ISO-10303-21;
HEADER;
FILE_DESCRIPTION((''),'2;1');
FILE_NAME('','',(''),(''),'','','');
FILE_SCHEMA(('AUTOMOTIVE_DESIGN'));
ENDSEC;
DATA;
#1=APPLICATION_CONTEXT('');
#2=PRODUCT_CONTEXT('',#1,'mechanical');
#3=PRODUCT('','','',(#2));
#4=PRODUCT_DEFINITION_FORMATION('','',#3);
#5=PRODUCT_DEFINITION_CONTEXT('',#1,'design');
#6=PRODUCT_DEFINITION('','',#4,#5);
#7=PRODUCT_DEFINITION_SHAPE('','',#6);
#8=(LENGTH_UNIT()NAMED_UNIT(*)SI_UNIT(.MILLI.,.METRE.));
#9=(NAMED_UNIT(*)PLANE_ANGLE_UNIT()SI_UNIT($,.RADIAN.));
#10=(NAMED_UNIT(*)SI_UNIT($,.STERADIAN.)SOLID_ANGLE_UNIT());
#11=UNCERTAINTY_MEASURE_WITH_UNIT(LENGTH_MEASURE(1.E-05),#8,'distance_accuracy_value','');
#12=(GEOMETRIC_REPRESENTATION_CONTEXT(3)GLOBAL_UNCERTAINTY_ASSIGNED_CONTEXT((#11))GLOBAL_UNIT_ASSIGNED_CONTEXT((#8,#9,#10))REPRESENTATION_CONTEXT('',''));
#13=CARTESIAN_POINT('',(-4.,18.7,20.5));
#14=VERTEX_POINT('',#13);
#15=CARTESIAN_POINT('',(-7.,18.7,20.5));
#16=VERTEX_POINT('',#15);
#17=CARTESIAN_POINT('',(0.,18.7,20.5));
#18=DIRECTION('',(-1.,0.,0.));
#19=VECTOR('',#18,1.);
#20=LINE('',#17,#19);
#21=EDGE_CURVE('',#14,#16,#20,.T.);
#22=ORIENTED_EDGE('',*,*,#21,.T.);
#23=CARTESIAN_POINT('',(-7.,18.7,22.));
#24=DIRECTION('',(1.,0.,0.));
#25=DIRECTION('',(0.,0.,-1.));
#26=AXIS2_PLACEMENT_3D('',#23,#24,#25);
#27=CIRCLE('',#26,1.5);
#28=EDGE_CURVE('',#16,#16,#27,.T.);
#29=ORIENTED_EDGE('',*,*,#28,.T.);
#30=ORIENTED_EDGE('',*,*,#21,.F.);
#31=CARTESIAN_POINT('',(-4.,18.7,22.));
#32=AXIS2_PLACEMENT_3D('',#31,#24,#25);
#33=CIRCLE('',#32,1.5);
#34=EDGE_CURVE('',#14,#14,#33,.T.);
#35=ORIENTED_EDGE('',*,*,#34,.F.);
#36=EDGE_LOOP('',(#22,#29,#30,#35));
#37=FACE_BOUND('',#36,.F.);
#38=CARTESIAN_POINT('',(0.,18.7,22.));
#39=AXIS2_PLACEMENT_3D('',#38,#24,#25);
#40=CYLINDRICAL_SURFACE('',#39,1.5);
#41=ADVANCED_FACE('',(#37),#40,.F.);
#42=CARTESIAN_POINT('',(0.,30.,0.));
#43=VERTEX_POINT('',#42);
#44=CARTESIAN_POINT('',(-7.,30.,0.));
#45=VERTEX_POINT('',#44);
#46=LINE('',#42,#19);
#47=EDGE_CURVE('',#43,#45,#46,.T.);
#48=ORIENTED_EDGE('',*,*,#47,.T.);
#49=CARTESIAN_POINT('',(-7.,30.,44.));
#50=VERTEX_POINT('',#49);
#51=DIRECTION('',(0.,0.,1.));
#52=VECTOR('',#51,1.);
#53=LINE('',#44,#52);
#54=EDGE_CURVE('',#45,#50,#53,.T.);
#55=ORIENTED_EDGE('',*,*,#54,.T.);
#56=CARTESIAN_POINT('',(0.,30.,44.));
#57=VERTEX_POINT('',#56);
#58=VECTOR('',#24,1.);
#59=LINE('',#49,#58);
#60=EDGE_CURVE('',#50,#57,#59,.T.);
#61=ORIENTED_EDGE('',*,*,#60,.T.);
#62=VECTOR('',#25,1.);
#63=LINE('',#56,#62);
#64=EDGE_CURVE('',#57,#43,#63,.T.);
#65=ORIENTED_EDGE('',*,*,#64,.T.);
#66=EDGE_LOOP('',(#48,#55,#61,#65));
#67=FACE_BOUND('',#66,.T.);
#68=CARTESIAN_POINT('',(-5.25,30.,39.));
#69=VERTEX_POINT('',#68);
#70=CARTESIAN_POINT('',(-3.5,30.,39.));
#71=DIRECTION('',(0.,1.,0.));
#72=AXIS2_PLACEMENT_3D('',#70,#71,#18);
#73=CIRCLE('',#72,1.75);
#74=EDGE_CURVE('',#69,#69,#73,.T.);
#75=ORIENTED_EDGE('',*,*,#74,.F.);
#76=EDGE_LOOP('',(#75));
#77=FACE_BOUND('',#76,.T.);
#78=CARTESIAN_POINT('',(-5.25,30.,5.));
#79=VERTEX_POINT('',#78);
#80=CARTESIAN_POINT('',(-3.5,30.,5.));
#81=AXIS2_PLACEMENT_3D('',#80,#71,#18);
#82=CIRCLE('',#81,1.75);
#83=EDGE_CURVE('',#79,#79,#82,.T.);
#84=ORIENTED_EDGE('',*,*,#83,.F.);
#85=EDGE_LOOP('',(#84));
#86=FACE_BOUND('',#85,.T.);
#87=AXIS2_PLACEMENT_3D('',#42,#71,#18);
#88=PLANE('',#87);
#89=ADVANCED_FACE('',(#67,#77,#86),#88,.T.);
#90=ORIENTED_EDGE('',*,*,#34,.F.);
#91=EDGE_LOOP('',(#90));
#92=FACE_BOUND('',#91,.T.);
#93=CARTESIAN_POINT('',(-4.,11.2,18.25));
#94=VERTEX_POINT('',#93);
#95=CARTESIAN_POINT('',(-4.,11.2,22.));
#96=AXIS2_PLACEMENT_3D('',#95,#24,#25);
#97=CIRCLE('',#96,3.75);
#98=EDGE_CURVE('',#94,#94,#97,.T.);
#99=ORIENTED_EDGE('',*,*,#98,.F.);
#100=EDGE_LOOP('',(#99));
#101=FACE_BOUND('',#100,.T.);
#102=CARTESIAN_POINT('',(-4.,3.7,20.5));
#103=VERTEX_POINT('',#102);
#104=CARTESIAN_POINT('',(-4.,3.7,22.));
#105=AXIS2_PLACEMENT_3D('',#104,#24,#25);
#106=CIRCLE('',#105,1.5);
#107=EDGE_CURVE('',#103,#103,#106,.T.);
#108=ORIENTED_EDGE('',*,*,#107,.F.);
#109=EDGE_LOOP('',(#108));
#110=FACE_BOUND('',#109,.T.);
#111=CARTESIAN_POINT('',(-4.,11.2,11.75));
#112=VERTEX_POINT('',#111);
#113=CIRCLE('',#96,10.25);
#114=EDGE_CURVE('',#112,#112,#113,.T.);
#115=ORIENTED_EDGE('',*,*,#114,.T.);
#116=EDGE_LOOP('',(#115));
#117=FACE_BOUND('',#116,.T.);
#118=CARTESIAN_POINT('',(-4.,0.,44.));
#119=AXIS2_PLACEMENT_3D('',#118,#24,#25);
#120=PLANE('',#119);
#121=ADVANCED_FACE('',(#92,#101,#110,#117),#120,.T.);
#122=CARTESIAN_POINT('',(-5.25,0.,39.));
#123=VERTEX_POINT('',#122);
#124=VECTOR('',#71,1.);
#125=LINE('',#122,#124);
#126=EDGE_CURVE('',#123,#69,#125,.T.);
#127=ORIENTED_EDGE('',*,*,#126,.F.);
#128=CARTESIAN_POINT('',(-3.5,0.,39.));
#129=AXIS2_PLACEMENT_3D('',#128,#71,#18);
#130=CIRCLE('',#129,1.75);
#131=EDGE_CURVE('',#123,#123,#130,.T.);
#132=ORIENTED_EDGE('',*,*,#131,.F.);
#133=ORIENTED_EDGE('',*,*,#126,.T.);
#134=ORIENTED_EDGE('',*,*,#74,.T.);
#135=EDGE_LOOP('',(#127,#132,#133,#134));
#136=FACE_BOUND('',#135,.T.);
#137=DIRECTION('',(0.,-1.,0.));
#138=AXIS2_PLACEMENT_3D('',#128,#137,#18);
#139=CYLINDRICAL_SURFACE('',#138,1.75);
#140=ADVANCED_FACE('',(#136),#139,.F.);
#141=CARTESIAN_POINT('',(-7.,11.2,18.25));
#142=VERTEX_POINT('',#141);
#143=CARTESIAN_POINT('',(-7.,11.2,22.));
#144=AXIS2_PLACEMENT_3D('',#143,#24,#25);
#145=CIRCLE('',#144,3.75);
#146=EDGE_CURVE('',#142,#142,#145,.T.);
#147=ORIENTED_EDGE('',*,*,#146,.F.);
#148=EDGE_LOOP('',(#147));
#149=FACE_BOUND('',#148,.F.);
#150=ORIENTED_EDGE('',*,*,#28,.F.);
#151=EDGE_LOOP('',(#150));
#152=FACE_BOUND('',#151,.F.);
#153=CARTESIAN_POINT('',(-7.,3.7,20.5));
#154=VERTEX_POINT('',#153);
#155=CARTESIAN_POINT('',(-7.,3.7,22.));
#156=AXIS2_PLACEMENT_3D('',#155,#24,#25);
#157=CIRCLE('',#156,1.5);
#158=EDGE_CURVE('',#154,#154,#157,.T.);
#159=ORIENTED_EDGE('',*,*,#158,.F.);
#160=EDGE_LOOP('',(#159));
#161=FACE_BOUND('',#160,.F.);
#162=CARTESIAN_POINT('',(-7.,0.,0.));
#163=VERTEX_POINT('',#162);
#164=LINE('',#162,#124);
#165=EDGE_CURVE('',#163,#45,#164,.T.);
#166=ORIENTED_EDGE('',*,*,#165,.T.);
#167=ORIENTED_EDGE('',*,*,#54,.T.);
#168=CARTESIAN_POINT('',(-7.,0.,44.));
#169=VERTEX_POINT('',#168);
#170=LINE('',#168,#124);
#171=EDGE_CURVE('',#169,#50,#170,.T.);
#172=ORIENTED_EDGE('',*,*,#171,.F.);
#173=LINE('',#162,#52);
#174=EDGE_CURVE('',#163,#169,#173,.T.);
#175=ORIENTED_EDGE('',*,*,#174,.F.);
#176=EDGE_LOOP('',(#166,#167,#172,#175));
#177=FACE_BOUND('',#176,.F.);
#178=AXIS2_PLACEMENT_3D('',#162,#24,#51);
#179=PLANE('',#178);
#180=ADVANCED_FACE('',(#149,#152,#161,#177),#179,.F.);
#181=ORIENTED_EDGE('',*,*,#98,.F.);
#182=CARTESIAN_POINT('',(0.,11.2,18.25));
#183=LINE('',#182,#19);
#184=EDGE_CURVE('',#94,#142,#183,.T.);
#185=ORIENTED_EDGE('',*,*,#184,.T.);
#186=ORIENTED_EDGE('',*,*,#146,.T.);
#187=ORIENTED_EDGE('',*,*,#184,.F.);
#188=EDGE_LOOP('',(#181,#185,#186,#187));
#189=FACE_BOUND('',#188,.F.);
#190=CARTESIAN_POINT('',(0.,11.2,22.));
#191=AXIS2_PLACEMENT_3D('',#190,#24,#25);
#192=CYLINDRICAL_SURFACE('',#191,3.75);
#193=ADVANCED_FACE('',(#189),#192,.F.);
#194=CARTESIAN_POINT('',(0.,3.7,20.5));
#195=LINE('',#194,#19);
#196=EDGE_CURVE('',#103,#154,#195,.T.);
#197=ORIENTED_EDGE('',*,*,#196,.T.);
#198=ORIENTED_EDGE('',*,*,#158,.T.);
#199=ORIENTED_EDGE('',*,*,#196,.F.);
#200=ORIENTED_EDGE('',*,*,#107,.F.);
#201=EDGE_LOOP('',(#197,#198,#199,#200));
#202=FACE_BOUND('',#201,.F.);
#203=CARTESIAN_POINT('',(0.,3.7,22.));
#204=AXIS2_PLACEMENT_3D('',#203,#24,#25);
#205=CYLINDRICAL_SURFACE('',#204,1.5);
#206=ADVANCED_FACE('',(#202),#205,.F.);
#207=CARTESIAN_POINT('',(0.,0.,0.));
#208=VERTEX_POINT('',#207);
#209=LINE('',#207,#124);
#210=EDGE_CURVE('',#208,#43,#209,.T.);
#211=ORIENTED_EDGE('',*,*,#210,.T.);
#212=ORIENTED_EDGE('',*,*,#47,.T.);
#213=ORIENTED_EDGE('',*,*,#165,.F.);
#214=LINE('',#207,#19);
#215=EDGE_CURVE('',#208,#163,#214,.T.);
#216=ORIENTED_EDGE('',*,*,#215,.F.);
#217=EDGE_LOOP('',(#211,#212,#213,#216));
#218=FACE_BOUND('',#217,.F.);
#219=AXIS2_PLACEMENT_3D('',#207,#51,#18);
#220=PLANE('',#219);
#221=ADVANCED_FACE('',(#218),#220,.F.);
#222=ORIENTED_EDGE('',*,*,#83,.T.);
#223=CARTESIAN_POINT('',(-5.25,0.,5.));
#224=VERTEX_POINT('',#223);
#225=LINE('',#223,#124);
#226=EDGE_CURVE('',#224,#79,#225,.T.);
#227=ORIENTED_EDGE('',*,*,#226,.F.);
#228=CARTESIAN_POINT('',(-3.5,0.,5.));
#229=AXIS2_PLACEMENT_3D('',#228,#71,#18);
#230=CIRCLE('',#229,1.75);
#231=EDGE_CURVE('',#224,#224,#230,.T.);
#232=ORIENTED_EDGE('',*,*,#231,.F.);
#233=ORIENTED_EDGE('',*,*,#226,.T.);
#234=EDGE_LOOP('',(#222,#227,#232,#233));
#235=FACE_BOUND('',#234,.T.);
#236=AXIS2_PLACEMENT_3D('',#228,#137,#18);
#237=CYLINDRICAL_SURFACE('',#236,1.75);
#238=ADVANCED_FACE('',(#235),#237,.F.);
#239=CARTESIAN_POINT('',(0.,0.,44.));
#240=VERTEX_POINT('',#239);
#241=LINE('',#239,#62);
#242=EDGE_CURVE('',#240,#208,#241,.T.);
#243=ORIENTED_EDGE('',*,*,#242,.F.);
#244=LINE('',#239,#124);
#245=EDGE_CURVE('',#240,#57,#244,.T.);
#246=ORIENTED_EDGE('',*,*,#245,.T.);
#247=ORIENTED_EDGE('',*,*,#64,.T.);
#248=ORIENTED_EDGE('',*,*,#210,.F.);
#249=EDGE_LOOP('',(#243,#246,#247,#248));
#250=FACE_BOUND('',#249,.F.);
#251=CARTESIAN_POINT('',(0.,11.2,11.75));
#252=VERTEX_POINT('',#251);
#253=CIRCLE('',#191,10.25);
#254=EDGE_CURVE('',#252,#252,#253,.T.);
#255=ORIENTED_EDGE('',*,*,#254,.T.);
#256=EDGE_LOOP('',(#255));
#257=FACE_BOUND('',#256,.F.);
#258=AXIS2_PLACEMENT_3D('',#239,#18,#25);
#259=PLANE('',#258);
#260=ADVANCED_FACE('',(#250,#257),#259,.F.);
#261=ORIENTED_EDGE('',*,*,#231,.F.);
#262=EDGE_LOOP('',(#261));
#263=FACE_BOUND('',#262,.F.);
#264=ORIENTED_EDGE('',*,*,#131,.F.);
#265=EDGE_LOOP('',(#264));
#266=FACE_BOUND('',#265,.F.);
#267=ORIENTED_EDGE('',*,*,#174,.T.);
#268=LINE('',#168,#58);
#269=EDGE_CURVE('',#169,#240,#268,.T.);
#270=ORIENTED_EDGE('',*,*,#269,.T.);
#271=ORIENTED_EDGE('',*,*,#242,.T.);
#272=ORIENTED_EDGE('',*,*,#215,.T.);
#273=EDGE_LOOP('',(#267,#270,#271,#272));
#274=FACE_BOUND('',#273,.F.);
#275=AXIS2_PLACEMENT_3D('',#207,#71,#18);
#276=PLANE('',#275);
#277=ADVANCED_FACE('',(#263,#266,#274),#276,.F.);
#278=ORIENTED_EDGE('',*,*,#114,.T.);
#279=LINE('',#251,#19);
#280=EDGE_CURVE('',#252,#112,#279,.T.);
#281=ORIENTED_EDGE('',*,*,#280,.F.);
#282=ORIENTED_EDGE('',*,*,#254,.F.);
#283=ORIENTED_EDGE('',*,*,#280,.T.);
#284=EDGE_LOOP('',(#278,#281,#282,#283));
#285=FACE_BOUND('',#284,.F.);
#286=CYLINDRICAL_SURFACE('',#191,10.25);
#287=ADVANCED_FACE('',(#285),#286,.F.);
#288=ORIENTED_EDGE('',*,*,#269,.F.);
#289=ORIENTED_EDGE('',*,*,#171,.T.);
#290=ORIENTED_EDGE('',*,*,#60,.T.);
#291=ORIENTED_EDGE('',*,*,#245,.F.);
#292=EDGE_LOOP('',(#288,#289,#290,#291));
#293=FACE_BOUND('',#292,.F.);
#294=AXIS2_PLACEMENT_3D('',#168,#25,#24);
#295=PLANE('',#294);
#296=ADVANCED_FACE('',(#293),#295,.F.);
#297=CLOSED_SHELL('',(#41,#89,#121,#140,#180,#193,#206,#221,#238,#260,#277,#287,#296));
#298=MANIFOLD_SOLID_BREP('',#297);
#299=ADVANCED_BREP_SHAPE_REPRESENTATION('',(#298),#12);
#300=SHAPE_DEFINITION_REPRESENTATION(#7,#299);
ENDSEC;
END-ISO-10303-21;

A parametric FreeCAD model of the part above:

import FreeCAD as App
import Part
import Sketcher


def add_polygon(sketch, points):
    """Adds a closed chain of lines whose ends are joined by coincident constraints."""
    first, n = sketch.GeometryCount, len(points)
    for a, b in zip(points, points[1:] + points[:1]):
        sketch.addGeometry(Part.LineSegment(App.Vector(*a, 0), App.Vector(*b, 0)), False)
    for i in range(n):
        sketch.addConstraint(Sketcher.Constraint("Coincident", first + i, 2, first + (i + 1) % n, 1))

doc = App.newDocument("Part")
body = doc.addObject("PartDesign::Body", "Body")

# Sketch on XZ plane
sketch1 = body.newObject("Sketcher::SketchObject", "Sketch")
sketch1.AttachmentSupport = (doc.getObject("XZ_Plane"), [""])
sketch1.MapMode = "FlatFace"
add_polygon(sketch1, [(-7, 0), (-7, 44), (0, 44), (0, 0)])  # lines 0-3
sketch1.addGeometry(Part.Circle(App.Vector(-3.5, 5, 0), App.Vector(0, 0, 1), 1.75), False)  # 4
sketch1.addGeometry(Part.Circle(App.Vector(-3.5, 39, 0), App.Vector(0, 0, 1), 1.75), False)  # 5
sketch1.addConstraint(Sketcher.Constraint("Vertical", 0))
sketch1.addConstraint(Sketcher.Constraint("Horizontal", 1))
sketch1.addConstraint(Sketcher.Constraint("Vertical", 2))
sketch1.addConstraint(Sketcher.Constraint("Horizontal", 3))
sketch1.addConstraint(Sketcher.Constraint("Coincident", 2, 2, -1, 1))
sketch1.addConstraint(Sketcher.Constraint("Equal", 4, 5))
sketch1.addConstraint(Sketcher.Constraint("Vertical", 4, 3, 5, 3))
sketch1.addConstraint(Sketcher.Constraint("Diameter", 4, 3.5))
sketch1.addConstraint(Sketcher.Constraint("DistanceX", 1, 1, 1, 2, 7.0))
sketch1.addConstraint(Sketcher.Constraint("DistanceY", 0, 1, 0, 2, 44.0))
sketch1.addConstraint(Sketcher.Constraint("DistanceY", 4, 3, 5, 3, 34.0))
sketch1.addConstraint(Sketcher.Constraint("DistanceX", 4, 3, -1, 1, 3.5))
sketch1.addConstraint(Sketcher.Constraint("DistanceY", -1, 1, 4, 3, 5.0))
pad1 = body.newObject("PartDesign::Pad", "Pad")
pad1.Profile = sketch1
pad1.Length = 30
pad1.Reversed = True

# Sketch on YZ plane
sketch2 = body.newObject("Sketcher::SketchObject", "Sketch001")
sketch2.AttachmentSupport = (doc.getObject("YZ_Plane"), [""])
sketch2.MapMode = "FlatFace"
sketch2.addGeometry(Part.Circle(App.Vector(11.2, 22, 0), App.Vector(0, 0, 1), 3.75), False)
sketch2.addGeometry(Part.Circle(App.Vector(18.7, 22, 0), App.Vector(0, 0, 1), 1.5), False)
sketch2.addGeometry(Part.Circle(App.Vector(3.7, 22, 0), App.Vector(0, 0, 1), 1.5), False)
sketch2.addConstraint(Sketcher.Constraint("Equal", 1, 2))
sketch2.addConstraint(Sketcher.Constraint("Horizontal", 0, 3, 1, 3))
sketch2.addConstraint(Sketcher.Constraint("Horizontal", 1, 3, 2, 3))
sketch2.addConstraint(Sketcher.Constraint("Diameter", 1, 3.0))
sketch2.addConstraint(Sketcher.Constraint("Diameter", 0, 7.5))
sketch2.addConstraint(Sketcher.Constraint("DistanceX", 2, 3, 1, 3, 15.0))
sketch2.addConstraint(Sketcher.Constraint("DistanceX", -1, 1, 0, 3, 11.2))
sketch2.addConstraint(Sketcher.Constraint("DistanceX", 0, 3, 1, 3, 7.5))
sketch2.addConstraint(Sketcher.Constraint("DistanceY", -1, 1, 0, 3, 22.0))
pocket1 = body.newObject("PartDesign::Pocket", "Pocket")
pocket1.Profile = sketch2
pocket1.Length = 30

# Sketch on YZ plane
sketch3 = body.newObject("Sketcher::SketchObject", "Sketch002")
sketch3.AttachmentSupport = (doc.getObject("YZ_Plane"), [""])
sketch3.MapMode = "FlatFace"
sketch3.addGeometry(Part.Circle(App.Vector(11.2, 22, 0), App.Vector(0, 0, 1), 10.25), False)
sketch3.addGeometry(Part.Circle(App.Vector(3.7, 22, 0), App.Vector(0, 0, 1), 1.5), False)
sketch3.addGeometry(Part.Circle(App.Vector(11.2, 22, 0), App.Vector(0, 0, 1), 3.75), False)
sketch3.addGeometry(Part.Circle(App.Vector(18.7, 22, 0), App.Vector(0, 0, 1), 1.5), False)
sketch3.addConstraint(Sketcher.Constraint("Coincident", 2, 3, 0, 3))
sketch3.addConstraint(Sketcher.Constraint("Equal", 1, 3))
sketch3.addConstraint(Sketcher.Constraint("Horizontal", 0, 3, 1, 3))
sketch3.addConstraint(Sketcher.Constraint("Horizontal", 2, 3, 3, 3))
sketch3.addConstraint(Sketcher.Constraint("Diameter", 1, 3.0))
sketch3.addConstraint(Sketcher.Constraint("Diameter", 0, 20.5))
sketch3.addConstraint(Sketcher.Constraint("Diameter", 2, 7.5))
sketch3.addConstraint(Sketcher.Constraint("DistanceX", 1, 3, 3, 3, 15.0))
sketch3.addConstraint(Sketcher.Constraint("DistanceX", -1, 1, 0, 3, 11.2))
sketch3.addConstraint(Sketcher.Constraint("DistanceX", 1, 3, 0, 3, 7.5))
sketch3.addConstraint(Sketcher.Constraint("DistanceY", -1, 1, 0, 3, 22.0))
pocket2 = body.newObject("PartDesign::Pocket", "Pocket001")
pocket2.Profile = sketch3
pocket2.Length = 4

doc.recompute()
